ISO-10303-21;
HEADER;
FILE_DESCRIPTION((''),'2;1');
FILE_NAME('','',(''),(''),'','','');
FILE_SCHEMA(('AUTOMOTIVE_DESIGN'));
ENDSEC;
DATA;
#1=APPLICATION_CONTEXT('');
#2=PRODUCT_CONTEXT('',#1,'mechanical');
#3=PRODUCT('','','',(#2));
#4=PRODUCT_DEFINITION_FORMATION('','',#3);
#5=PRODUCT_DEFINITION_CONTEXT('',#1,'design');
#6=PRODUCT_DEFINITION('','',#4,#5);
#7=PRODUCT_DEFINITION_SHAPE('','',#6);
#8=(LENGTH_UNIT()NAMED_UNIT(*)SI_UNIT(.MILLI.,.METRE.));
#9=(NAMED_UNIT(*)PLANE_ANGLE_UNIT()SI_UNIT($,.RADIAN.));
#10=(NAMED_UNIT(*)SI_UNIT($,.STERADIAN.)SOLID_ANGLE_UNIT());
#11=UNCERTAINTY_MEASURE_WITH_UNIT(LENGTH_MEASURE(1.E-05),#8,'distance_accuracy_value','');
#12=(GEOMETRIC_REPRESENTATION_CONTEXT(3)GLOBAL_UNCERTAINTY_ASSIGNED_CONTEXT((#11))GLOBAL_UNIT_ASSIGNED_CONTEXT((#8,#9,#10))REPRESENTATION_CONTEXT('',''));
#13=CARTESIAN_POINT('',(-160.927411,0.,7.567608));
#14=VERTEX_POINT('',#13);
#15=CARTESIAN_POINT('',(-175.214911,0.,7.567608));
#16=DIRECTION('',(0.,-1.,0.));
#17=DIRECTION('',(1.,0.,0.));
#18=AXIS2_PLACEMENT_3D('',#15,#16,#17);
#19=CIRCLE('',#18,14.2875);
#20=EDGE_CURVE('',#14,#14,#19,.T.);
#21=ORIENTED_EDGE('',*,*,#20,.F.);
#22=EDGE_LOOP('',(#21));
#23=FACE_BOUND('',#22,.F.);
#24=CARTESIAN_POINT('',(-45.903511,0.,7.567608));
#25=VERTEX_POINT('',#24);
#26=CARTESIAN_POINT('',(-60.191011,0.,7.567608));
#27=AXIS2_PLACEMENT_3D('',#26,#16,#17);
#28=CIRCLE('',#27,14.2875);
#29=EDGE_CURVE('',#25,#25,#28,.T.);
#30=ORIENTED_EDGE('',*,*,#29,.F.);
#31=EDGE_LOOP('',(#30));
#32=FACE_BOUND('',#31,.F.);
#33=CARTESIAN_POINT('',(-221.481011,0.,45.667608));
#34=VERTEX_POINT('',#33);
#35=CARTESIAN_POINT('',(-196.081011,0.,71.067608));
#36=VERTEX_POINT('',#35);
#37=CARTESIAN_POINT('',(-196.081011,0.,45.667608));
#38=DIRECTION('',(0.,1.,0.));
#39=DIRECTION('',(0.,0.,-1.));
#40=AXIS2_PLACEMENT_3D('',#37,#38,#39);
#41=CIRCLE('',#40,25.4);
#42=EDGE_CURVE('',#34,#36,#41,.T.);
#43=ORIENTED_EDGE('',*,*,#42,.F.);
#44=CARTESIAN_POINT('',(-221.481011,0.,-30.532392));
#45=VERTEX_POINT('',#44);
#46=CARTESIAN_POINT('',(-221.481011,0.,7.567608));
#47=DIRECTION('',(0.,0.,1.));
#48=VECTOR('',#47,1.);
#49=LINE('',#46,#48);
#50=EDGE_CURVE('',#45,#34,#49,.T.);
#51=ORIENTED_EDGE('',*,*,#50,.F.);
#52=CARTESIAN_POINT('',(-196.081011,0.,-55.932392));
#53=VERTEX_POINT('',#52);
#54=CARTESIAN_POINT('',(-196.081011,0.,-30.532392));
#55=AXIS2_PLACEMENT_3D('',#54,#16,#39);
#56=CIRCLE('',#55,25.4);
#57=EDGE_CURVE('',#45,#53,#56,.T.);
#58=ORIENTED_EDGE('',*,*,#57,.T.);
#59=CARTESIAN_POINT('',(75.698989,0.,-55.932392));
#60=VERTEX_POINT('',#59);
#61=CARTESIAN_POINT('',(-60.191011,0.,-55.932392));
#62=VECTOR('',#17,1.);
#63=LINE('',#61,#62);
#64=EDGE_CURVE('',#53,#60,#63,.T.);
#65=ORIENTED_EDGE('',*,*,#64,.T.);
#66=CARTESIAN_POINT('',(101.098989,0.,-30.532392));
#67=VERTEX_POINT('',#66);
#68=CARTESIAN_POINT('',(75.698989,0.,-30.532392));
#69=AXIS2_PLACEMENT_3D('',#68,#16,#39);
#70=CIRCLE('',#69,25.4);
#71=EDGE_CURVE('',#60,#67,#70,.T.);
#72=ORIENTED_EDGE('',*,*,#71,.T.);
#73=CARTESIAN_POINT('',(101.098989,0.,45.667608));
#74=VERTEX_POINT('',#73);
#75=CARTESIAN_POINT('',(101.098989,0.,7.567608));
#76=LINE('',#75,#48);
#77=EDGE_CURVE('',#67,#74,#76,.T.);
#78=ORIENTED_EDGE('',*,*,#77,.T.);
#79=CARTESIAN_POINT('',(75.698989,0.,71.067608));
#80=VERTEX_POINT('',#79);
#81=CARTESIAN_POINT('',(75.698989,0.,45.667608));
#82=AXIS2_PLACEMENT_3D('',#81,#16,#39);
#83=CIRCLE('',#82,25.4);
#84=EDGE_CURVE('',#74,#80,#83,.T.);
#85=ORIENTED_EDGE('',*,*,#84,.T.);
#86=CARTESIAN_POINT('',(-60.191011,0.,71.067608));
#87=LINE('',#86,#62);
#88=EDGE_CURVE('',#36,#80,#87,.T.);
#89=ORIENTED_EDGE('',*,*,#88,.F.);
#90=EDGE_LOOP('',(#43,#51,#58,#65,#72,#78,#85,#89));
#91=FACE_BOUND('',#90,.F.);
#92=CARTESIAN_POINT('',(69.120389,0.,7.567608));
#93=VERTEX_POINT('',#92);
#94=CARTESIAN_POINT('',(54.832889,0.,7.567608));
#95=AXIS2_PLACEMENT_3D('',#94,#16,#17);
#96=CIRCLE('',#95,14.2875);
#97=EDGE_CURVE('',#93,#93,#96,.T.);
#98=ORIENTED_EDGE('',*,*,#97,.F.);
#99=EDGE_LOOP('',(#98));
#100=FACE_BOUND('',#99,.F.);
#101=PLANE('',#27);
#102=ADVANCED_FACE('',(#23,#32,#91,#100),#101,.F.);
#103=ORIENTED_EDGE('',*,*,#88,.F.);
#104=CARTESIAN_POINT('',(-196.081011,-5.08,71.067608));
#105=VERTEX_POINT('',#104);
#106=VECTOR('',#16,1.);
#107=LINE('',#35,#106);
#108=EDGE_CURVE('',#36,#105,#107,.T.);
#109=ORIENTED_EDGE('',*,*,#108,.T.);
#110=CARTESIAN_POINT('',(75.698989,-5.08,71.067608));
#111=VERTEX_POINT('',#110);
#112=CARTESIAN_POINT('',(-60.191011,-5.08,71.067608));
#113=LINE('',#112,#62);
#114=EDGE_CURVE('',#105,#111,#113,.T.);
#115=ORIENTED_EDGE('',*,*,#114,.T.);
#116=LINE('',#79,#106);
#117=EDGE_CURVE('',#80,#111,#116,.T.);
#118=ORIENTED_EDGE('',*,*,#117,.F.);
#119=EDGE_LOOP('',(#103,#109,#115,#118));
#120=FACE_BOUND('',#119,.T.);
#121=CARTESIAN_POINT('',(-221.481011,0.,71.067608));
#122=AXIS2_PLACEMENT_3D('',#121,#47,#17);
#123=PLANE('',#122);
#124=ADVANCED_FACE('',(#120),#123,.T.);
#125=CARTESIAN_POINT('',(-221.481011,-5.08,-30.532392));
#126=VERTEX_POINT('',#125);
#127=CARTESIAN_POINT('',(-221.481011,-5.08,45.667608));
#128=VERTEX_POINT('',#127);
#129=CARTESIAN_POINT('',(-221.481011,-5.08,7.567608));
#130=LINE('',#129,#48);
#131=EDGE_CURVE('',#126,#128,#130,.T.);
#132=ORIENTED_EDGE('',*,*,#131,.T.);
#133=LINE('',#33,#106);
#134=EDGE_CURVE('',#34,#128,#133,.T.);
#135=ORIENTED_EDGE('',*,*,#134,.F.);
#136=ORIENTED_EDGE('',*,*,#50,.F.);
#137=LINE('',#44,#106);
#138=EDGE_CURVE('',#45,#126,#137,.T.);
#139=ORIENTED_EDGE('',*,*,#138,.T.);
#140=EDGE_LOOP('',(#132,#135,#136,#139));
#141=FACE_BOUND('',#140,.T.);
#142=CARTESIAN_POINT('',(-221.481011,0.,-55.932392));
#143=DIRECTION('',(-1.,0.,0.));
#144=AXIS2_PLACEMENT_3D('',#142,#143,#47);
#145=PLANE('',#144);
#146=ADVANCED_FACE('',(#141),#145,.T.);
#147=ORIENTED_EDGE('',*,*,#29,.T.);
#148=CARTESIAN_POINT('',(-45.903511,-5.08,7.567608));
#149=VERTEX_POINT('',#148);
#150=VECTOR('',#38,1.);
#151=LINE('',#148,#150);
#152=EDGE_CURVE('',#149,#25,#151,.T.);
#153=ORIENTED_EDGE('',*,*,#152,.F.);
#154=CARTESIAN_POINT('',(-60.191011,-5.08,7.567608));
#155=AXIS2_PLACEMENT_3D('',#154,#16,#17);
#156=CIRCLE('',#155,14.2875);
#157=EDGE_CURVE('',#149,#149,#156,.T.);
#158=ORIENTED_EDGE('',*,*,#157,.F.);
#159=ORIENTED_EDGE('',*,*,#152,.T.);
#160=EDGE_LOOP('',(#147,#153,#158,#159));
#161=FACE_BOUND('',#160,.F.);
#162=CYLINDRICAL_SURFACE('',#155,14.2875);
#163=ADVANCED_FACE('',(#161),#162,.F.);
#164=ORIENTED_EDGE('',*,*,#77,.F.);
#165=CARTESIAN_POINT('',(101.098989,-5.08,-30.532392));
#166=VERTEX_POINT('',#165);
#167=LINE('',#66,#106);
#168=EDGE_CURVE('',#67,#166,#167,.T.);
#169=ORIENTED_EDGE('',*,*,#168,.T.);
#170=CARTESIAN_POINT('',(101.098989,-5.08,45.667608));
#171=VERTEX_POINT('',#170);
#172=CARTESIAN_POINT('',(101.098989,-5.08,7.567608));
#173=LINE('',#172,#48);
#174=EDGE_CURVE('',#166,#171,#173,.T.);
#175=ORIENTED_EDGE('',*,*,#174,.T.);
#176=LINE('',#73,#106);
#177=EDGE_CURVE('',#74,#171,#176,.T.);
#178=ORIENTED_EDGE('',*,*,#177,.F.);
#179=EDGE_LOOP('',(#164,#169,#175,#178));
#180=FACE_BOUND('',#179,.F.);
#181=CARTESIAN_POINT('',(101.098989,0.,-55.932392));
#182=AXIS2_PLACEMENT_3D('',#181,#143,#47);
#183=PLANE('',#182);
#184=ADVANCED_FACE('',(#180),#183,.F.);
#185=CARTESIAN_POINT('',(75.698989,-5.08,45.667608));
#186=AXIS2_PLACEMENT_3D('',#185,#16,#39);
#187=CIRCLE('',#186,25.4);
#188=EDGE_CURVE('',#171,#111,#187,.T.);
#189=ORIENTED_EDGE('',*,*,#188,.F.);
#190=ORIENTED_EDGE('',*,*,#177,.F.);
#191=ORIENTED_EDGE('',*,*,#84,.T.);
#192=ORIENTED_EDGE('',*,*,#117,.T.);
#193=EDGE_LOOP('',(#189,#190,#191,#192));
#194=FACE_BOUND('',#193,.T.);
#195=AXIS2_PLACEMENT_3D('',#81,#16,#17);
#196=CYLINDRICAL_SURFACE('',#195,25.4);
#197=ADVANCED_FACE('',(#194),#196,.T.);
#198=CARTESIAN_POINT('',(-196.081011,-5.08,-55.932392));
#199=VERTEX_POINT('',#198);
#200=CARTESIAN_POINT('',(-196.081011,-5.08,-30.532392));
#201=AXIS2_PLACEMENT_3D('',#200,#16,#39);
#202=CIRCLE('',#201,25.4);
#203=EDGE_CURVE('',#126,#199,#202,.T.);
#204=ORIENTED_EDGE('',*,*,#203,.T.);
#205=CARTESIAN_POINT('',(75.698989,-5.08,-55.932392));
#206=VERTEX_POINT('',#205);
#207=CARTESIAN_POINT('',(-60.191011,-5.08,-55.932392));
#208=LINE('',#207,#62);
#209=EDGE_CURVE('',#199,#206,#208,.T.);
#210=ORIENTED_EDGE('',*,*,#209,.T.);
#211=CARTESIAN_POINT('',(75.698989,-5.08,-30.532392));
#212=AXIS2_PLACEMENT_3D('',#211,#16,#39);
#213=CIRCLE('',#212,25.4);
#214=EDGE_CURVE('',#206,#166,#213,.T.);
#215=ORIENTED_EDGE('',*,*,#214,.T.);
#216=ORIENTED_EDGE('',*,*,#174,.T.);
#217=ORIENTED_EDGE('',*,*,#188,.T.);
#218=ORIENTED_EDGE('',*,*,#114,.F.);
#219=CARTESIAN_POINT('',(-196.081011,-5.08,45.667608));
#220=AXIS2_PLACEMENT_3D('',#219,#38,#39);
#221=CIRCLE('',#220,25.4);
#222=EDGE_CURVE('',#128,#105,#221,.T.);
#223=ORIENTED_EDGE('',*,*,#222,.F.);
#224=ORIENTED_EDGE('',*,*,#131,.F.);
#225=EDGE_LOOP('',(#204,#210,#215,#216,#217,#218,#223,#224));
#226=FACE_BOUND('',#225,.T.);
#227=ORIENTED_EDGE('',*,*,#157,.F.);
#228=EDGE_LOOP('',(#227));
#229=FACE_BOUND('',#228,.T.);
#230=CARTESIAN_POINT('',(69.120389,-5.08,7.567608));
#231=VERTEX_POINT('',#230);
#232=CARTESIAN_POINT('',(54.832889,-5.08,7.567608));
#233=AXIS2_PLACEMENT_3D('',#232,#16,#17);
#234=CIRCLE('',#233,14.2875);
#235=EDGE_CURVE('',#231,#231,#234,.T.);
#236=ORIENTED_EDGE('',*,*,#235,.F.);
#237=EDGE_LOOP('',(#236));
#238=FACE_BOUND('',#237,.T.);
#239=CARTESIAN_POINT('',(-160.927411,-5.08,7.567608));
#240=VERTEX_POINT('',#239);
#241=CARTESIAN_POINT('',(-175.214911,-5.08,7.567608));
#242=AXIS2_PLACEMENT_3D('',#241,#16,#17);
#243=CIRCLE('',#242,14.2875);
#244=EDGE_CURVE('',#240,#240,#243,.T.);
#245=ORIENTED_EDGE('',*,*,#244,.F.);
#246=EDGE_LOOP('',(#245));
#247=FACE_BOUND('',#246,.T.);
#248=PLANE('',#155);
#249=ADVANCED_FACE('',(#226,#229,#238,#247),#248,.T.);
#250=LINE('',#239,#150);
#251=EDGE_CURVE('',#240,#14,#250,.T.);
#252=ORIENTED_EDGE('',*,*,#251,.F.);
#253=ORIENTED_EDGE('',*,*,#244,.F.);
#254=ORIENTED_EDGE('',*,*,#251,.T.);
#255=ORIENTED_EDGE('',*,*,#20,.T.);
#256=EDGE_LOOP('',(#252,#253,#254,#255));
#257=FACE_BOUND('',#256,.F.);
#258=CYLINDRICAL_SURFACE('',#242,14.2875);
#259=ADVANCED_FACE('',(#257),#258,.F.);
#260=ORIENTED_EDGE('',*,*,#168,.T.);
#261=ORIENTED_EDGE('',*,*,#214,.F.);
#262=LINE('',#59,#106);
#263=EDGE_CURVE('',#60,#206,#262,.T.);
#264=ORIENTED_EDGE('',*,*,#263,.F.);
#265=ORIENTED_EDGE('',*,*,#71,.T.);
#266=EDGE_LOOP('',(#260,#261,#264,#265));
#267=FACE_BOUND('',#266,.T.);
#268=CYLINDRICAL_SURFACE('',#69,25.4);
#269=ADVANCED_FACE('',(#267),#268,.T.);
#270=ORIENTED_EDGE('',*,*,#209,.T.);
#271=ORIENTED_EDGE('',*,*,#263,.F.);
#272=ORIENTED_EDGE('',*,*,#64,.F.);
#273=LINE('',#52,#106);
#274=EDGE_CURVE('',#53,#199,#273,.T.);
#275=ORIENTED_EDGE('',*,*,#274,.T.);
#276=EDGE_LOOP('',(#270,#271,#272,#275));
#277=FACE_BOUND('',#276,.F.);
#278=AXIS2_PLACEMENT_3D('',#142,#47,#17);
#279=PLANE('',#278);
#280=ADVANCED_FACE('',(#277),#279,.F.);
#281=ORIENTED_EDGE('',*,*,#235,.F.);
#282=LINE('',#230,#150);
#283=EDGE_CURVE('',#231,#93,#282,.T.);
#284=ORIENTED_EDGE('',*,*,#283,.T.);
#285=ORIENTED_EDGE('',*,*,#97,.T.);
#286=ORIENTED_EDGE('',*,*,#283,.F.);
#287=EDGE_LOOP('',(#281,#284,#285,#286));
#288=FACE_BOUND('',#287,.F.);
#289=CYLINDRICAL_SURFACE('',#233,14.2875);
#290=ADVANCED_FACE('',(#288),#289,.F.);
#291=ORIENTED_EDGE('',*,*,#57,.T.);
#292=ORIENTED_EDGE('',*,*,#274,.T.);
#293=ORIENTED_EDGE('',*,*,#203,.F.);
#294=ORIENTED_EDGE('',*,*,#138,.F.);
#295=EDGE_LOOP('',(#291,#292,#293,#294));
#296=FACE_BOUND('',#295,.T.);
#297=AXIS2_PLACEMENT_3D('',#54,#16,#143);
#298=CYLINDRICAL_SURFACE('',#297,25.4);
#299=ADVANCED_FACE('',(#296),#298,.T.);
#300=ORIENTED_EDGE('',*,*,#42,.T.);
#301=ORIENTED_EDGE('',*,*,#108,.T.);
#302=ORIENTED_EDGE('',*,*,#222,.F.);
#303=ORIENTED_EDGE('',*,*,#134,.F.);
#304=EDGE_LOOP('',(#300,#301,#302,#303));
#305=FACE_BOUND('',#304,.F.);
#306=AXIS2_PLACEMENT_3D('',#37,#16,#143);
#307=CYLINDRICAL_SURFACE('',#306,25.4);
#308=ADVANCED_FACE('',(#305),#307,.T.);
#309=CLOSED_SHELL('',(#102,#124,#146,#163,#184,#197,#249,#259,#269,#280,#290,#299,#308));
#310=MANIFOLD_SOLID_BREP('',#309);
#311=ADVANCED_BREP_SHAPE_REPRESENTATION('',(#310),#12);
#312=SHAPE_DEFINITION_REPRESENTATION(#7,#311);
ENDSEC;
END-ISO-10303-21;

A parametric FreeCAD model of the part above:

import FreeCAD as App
import Part
import Sketcher
from FreeCAD import Vector
Q = App.Units.Quantity


def edges_at(feature, points):
    """Names of the edges that pass closest to the given points."""
    edges = feature.Shape.Edges
    near = lambda p: min(range(len(edges)), key=lambda i: edges[i].distToShape(Part.Vertex(*p))[0])
    return sorted({f"Edge{near(p) + 1}" for p in points})

doc = App.newDocument("Part")
body = doc.addObject("PartDesign::Body", "Body")

# Sketch on XZ plane
sketch1 = body.newObject("Sketcher::SketchObject", "Sketch")
sketch1.AttachmentSupport = (doc.getObject("XZ_Plane"), [""])
sketch1.MapMode = "FlatFace"
sketch1.addGeometry(Part.LineSegment(Vector(-221.481011, 71.067608, 0), Vector(-221.481011, -55.932392, 0)), False)
sketch1.addGeometry(Part.LineSegment(Vector(-221.481011, -55.932392, 0), Vector(101.098989, -55.932392, 0)), False)
sketch1.addGeometry(Part.LineSegment(Vector(101.098989, -55.932392, 0), Vector(101.098989, 71.067608, 0)), False)
sketch1.addGeometry(Part.LineSegment(Vector(101.098989, 71.067608, 0), Vector(-221.481011, 71.067608, 0)), False)
sketch1.addConstraint(Sketcher.Constraint("Coincident", 0, 2, 1, 1))
sketch1.addConstraint(Sketcher.Constraint("Coincident", 1, 2, 2, 1))
sketch1.addConstraint(Sketcher.Constraint("Coincident", 2, 2, 3, 1))
sketch1.addConstraint(Sketcher.Constraint("Coincident", 3, 2, 0, 1))
sketch1.addConstraint(Sketcher.Constraint("Vertical", 0))
sketch1.addConstraint(Sketcher.Constraint("Horizontal", 1))
sketch1.addConstraint(Sketcher.Constraint("Vertical", 2))
sketch1.addConstraint(Sketcher.Constraint("Horizontal", 3))
sketch1.addConstraint(Sketcher.Constraint("DistanceY", 0, 2, 0, 1, Q("5 in")))
sketch1.addConstraint(Sketcher.Constraint("DistanceX", 1, 1, 1, 2, Q("12.7 in")))
sketch1.addConstraint(Sketcher.Constraint("DistanceX", 0, 2, -1, 1, Q("221.481011 mm")))
sketch1.addConstraint(Sketcher.Constraint("DistanceY", -1, 1, 2, 2, Q("71.067608 mm")))
pad1 = body.newObject("PartDesign::Pad", "Pad")
pad1.Profile = sketch1
pad1.Length = Q("0.2 in")
doc.recompute()

fillet = body.newObject("PartDesign::Fillet", "Fillet")
fillet.Base = (pad1, edges_at(pad1, [
    (101.099, -2.54, 71.068),
    (101.099, -2.54, -55.932),
    (-221.481, -2.54, 71.068),
    (-221.481, -2.54, -55.932),
]))
fillet.Radius = Q("1 in")

# Sketch on XZ plane
sketch2 = body.newObject("Sketcher::SketchObject", "Sketch001")
sketch2.AttachmentSupport = (doc.getObject("XZ_Plane"), [""])
sketch2.MapMode = "FlatFace"
sketch2.AttachmentOffset = App.Placement(Vector(0, 0, 0.2 * 25.4), App.Rotation())
sketch2.addGeometry(Part.Circle(Vector(-60.191011, 7.567608, 0), Vector(0, 0, 1), 14.2875), False)
sketch2.addGeometry(Part.Circle(Vector(54.832889, 7.567608, 0), Vector(0, 0, 1), 14.2875), False)
sketch2.addGeometry(Part.Circle(Vector(-175.214911, 7.567608, 0), Vector(0, 0, 1), 14.2875), False)
sketch2.addConstraint(Sketcher.Constraint("Equal", 0, 1))
sketch2.addConstraint(Sketcher.Constraint("Equal", 1, 2))
sketch2.addConstraint(Sketcher.Constraint("Horizontal", 0, 3, 1, 3))
sketch2.addConstraint(Sketcher.Constraint("Horizontal", 1, 3, 2, 3))
sketch2.addConstraint(Sketcher.Constraint("Diameter", 0, Q("1.125 in")))
sketch2.addConstraint(Sketcher.Constraint("DistanceX", 2, 3, 1, 3, Q("9.057 in")))
sketch2.addConstraint(Sketcher.Constraint("DistanceX", 0, 3, 1, 3, Q("4.5285 in")))
sketch2.addConstraint(Sketcher.Constraint("DistanceX", 0, 3, -1, 1, Q("60.191011 mm")))
sketch2.addConstraint(Sketcher.Constraint("DistanceY", -1, 1, 0, 3, Q("7.567608 mm")))
pocket1 = body.newObject("PartDesign::Pocket", "Pocket")
pocket1.Profile = sketch2
pocket1.Length = Q("1 in")

doc.recompute()
